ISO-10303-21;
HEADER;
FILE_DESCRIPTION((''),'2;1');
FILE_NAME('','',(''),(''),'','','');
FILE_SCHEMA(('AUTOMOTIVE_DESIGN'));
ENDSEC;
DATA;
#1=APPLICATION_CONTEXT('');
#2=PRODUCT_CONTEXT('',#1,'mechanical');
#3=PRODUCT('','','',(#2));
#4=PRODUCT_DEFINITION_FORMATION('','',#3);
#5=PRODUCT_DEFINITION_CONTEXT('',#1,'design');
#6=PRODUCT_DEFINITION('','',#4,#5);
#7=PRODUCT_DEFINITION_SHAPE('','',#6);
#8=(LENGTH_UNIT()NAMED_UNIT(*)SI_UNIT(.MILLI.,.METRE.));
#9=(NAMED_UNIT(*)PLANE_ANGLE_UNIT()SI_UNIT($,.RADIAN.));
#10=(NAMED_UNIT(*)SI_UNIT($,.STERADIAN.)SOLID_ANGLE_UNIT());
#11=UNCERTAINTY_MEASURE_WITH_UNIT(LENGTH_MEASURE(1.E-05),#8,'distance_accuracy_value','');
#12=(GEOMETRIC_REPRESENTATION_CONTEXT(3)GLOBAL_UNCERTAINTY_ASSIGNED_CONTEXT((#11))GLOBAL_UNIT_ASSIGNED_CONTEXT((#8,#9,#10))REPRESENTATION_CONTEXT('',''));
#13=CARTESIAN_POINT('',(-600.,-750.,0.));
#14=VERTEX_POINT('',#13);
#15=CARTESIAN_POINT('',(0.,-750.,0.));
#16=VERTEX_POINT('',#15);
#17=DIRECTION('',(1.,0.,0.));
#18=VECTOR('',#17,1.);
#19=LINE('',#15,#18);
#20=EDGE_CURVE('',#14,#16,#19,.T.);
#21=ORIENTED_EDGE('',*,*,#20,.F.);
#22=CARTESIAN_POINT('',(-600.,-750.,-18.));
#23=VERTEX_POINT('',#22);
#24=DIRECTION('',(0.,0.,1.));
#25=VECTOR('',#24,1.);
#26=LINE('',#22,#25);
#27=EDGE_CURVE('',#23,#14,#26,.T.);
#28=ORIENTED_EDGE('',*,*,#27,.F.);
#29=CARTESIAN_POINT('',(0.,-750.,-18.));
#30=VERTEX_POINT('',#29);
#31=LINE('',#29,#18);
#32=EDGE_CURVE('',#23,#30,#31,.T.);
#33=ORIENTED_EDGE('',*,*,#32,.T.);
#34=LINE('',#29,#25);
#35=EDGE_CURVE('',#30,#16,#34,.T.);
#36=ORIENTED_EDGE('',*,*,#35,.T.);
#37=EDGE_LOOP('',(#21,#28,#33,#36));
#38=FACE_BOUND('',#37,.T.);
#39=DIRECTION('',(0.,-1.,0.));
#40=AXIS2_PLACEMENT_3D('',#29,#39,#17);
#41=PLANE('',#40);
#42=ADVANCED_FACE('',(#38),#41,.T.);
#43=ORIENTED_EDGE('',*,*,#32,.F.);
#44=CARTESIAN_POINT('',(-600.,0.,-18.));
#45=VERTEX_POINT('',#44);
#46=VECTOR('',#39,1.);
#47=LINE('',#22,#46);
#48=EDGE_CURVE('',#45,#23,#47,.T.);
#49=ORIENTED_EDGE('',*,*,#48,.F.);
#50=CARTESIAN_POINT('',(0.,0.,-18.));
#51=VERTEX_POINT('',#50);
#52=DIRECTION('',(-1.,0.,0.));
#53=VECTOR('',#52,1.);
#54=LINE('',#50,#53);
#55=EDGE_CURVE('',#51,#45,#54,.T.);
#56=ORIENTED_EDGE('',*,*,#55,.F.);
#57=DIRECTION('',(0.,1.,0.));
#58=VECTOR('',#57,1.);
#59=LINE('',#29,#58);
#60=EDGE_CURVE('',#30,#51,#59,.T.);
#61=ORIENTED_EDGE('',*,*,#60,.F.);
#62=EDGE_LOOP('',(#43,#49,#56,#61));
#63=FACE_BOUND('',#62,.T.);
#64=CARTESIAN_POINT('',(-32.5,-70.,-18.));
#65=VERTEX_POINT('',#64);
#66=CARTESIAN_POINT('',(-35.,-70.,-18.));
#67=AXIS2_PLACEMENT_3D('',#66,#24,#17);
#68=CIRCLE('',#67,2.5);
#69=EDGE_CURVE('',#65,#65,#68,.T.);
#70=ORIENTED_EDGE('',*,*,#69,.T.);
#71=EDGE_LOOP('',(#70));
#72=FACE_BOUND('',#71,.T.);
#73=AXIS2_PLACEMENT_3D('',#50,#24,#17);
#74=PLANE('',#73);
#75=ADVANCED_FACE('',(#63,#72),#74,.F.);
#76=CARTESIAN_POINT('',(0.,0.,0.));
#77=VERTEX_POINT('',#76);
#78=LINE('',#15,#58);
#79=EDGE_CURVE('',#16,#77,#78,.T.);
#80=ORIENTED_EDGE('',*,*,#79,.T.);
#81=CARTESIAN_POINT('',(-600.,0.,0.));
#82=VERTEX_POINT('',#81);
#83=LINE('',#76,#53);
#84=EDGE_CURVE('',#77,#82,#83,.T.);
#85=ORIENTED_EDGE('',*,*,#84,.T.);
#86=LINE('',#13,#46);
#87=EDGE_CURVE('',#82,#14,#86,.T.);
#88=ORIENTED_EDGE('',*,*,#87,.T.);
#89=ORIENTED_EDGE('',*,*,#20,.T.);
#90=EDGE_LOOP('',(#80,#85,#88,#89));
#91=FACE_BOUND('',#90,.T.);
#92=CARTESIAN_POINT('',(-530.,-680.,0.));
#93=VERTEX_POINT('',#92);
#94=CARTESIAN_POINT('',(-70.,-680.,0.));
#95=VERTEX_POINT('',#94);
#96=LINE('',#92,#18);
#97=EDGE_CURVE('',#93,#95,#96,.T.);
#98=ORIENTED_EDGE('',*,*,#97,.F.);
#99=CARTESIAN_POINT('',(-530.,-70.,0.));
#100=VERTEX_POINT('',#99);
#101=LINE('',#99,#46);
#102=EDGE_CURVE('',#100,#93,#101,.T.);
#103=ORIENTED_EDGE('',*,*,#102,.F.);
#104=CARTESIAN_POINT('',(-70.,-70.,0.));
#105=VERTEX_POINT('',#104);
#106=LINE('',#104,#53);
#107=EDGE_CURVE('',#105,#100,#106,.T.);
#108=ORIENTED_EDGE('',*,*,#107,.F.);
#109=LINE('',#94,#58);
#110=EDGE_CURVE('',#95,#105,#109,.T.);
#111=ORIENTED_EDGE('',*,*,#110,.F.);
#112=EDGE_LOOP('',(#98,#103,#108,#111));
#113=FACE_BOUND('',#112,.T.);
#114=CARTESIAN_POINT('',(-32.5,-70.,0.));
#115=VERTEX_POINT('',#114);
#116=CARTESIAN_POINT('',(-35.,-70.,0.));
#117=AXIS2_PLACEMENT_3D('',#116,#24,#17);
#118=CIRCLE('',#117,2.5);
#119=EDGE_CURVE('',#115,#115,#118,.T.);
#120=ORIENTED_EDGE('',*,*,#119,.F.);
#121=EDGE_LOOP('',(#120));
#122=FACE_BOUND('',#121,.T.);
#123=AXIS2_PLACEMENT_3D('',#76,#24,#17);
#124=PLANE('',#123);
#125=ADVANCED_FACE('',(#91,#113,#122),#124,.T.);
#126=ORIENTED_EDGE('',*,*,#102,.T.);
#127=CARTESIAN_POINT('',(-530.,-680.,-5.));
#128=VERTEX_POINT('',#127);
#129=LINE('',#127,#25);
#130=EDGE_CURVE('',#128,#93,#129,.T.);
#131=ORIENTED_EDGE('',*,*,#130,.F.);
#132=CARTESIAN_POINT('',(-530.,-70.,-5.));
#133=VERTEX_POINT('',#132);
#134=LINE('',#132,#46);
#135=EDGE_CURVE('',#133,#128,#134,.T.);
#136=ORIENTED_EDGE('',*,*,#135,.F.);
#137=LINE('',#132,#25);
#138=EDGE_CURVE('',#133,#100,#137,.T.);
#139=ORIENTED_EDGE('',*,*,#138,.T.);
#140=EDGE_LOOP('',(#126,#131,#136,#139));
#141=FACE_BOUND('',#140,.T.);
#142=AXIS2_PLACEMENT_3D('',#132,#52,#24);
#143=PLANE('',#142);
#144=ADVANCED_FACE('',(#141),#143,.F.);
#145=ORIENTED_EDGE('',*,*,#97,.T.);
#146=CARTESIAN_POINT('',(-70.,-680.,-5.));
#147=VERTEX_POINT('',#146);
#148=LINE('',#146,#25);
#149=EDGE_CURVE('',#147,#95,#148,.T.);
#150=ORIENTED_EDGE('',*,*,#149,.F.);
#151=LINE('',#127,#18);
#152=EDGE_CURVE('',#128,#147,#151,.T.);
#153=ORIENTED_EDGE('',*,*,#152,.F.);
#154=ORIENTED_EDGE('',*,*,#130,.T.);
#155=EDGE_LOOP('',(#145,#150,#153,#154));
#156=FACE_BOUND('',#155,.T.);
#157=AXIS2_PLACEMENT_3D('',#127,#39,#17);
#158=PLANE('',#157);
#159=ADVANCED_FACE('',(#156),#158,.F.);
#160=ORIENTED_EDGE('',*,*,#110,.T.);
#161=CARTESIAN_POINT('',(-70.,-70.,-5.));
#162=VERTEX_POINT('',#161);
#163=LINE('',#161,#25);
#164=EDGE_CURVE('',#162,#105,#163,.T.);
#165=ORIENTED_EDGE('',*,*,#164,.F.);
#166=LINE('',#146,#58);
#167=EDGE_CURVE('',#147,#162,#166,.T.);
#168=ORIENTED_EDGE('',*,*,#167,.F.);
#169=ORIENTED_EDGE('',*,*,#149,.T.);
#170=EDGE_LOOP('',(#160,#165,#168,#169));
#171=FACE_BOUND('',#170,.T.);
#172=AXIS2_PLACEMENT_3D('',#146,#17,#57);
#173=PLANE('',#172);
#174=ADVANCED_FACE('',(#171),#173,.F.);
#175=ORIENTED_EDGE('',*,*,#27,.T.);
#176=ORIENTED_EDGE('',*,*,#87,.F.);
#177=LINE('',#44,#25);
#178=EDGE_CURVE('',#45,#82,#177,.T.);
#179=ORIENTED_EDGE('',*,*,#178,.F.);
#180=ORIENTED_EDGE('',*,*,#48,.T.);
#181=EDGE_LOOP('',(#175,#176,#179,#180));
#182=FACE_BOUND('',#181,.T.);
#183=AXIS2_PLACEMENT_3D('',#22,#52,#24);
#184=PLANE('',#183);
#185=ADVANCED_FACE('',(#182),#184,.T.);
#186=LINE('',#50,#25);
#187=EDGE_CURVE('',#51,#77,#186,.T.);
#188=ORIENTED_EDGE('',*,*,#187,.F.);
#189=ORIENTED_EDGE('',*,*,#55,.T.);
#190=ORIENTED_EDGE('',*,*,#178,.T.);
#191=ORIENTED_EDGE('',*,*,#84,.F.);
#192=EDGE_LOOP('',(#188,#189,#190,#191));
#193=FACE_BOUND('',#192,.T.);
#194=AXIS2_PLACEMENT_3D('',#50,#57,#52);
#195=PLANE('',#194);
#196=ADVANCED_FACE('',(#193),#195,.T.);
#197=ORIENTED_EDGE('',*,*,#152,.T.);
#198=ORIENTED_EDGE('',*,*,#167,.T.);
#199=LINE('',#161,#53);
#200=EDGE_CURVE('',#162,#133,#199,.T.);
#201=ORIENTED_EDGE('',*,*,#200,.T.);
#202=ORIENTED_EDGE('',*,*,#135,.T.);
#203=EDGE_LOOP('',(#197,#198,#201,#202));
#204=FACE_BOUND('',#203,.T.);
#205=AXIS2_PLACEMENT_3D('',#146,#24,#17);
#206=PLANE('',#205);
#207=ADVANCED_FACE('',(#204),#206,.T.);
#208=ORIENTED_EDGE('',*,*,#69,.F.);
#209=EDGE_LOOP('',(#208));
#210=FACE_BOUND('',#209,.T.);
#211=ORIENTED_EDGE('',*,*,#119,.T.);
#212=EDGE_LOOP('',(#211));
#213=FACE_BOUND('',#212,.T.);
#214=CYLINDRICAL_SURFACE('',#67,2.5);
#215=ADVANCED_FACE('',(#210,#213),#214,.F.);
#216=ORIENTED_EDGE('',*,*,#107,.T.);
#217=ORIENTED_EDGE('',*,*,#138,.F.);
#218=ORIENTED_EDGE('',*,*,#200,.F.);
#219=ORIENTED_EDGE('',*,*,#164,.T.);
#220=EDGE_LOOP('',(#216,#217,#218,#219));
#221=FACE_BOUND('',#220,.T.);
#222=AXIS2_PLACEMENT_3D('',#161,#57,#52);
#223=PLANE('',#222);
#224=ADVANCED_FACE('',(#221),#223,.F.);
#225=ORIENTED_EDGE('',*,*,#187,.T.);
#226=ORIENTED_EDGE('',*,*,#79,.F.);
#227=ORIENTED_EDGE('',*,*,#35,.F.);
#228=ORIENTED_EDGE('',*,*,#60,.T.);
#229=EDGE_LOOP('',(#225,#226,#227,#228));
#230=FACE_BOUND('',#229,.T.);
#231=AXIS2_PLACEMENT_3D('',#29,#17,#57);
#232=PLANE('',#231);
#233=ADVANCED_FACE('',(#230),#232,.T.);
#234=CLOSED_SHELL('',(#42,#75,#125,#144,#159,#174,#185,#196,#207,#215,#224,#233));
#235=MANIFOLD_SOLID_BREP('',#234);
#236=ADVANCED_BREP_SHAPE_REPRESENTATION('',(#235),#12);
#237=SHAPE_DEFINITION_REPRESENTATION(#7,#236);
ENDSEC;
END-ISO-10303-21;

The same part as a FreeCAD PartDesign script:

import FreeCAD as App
import Part
import Sketcher

V = App.Vector
Q = App.Units.Quantity

doc = App.newDocument("Part")
body = doc.addObject("PartDesign::Body", "Body")

sketch1 = body.newObject("Sketcher::SketchObject", "Sketch")
sketch1.AttachmentSupport = (doc.getObject("XY_Plane"), [""])
sketch1.MapMode = "FlatFace"
sketch1.addGeometry([
    Part.LineSegment(V(-600, 0, 0), V(-600, -750, 0)),
    Part.LineSegment(V(-600, -750, 0), V(0, -750, 0)),
    Part.LineSegment(V(0, -750, 0), V(0, 0, 0)),
    Part.LineSegment(V(0, 0, 0), V(-600, 0, 0)),
], False)
sketch1.addConstraint([
    Sketcher.Constraint("Coincident", 0, 2, 1, 1),
    Sketcher.Constraint("Coincident", 1, 2, 2, 1),
    Sketcher.Constraint("Coincident", 2, 2, 3, 1),
    Sketcher.Constraint("Coincident", 3, 2, 0, 1),
    Sketcher.Constraint("Vertical", 0),
    Sketcher.Constraint("Horizontal", 1),
    Sketcher.Constraint("Vertical", 2),
    Sketcher.Constraint("Horizontal", 3),
    Sketcher.Constraint("Coincident", 2, 2, -1, 1),
    Sketcher.Constraint("DistanceX", 1, 1, 1, 2, Q("600 mm")),
    Sketcher.Constraint("DistanceY", 0, 2, 0, 1, Q("750 mm")),
])
pad1 = body.newObject("PartDesign::Pad", "Pad")
pad1.Profile = sketch1
pad1.Length = 18
pad1.Reversed = True

sketch2 = body.newObject("Sketcher::SketchObject", "Sketch001")
sketch2.AttachmentSupport = (doc.getObject("XY_Plane"), [""])
sketch2.MapMode = "FlatFace"
sketch2.addGeometry(Part.Circle(V(-35, -70, 0), V(0, 0, 1), 2.5), False)
sketch2.addConstraint([
    Sketcher.Constraint("Diameter", 0, Q("5 mm")),
    Sketcher.Constraint("DistanceX", 0, 3, -1, 1, Q("35 mm")),
    Sketcher.Constraint("DistanceY", 0, 3, -1, 1, Q("70 mm")),
])
pocket1 = body.newObject("PartDesign::Pocket", "Pocket")
pocket1.Profile = sketch2
pocket1.Type = "ThroughAll"

sketch3 = body.newObject("Sketcher::SketchObject", "Sketch002")
sketch3.AttachmentSupport = (doc.getObject("XY_Plane"), [""])
sketch3.MapMode = "FlatFace"
sketch3.addGeometry([
    Part.LineSegment(V(-530, -70, 0), V(-530, -680, 0)),
    Part.LineSegment(V(-530, -680, 0), V(-70, -680, 0)),
    Part.LineSegment(V(-70, -680, 0), V(-70, -70, 0)),
    Part.LineSegment(V(-70, -70, 0), V(-530, -70, 0)),
], False)
sketch3.addConstraint([
    Sketcher.Constraint("Coincident", 0, 2, 1, 1),
    Sketcher.Constraint("Coincident", 1, 2, 2, 1),
    Sketcher.Constraint("Coincident", 2, 2, 3, 1),
    Sketcher.Constraint("Coincident", 3, 2, 0, 1),
    Sketcher.Constraint("Vertical", 0),
    Sketcher.Constraint("Horizontal", 1),
    Sketcher.Constraint("Vertical", 2),
    Sketcher.Constraint("Horizontal", 3),
    Sketcher.Constraint("DistanceX", 1, 1, 1, 2, Q("460 mm")),
    Sketcher.Constraint("DistanceY", 0, 2, 0, 1, Q("610 mm")),
    Sketcher.Constraint("DistanceX", 0, 2, -1, 1, Q("530 mm")),
    Sketcher.Constraint("DistanceY", 0, 2, -1, 1, Q("680 mm")),
])
pocket2 = body.newObject("PartDesign::Pocket", "Pocket001")
pocket2.Profile = sketch3
pocket2.Length = 5

doc.recompute()
